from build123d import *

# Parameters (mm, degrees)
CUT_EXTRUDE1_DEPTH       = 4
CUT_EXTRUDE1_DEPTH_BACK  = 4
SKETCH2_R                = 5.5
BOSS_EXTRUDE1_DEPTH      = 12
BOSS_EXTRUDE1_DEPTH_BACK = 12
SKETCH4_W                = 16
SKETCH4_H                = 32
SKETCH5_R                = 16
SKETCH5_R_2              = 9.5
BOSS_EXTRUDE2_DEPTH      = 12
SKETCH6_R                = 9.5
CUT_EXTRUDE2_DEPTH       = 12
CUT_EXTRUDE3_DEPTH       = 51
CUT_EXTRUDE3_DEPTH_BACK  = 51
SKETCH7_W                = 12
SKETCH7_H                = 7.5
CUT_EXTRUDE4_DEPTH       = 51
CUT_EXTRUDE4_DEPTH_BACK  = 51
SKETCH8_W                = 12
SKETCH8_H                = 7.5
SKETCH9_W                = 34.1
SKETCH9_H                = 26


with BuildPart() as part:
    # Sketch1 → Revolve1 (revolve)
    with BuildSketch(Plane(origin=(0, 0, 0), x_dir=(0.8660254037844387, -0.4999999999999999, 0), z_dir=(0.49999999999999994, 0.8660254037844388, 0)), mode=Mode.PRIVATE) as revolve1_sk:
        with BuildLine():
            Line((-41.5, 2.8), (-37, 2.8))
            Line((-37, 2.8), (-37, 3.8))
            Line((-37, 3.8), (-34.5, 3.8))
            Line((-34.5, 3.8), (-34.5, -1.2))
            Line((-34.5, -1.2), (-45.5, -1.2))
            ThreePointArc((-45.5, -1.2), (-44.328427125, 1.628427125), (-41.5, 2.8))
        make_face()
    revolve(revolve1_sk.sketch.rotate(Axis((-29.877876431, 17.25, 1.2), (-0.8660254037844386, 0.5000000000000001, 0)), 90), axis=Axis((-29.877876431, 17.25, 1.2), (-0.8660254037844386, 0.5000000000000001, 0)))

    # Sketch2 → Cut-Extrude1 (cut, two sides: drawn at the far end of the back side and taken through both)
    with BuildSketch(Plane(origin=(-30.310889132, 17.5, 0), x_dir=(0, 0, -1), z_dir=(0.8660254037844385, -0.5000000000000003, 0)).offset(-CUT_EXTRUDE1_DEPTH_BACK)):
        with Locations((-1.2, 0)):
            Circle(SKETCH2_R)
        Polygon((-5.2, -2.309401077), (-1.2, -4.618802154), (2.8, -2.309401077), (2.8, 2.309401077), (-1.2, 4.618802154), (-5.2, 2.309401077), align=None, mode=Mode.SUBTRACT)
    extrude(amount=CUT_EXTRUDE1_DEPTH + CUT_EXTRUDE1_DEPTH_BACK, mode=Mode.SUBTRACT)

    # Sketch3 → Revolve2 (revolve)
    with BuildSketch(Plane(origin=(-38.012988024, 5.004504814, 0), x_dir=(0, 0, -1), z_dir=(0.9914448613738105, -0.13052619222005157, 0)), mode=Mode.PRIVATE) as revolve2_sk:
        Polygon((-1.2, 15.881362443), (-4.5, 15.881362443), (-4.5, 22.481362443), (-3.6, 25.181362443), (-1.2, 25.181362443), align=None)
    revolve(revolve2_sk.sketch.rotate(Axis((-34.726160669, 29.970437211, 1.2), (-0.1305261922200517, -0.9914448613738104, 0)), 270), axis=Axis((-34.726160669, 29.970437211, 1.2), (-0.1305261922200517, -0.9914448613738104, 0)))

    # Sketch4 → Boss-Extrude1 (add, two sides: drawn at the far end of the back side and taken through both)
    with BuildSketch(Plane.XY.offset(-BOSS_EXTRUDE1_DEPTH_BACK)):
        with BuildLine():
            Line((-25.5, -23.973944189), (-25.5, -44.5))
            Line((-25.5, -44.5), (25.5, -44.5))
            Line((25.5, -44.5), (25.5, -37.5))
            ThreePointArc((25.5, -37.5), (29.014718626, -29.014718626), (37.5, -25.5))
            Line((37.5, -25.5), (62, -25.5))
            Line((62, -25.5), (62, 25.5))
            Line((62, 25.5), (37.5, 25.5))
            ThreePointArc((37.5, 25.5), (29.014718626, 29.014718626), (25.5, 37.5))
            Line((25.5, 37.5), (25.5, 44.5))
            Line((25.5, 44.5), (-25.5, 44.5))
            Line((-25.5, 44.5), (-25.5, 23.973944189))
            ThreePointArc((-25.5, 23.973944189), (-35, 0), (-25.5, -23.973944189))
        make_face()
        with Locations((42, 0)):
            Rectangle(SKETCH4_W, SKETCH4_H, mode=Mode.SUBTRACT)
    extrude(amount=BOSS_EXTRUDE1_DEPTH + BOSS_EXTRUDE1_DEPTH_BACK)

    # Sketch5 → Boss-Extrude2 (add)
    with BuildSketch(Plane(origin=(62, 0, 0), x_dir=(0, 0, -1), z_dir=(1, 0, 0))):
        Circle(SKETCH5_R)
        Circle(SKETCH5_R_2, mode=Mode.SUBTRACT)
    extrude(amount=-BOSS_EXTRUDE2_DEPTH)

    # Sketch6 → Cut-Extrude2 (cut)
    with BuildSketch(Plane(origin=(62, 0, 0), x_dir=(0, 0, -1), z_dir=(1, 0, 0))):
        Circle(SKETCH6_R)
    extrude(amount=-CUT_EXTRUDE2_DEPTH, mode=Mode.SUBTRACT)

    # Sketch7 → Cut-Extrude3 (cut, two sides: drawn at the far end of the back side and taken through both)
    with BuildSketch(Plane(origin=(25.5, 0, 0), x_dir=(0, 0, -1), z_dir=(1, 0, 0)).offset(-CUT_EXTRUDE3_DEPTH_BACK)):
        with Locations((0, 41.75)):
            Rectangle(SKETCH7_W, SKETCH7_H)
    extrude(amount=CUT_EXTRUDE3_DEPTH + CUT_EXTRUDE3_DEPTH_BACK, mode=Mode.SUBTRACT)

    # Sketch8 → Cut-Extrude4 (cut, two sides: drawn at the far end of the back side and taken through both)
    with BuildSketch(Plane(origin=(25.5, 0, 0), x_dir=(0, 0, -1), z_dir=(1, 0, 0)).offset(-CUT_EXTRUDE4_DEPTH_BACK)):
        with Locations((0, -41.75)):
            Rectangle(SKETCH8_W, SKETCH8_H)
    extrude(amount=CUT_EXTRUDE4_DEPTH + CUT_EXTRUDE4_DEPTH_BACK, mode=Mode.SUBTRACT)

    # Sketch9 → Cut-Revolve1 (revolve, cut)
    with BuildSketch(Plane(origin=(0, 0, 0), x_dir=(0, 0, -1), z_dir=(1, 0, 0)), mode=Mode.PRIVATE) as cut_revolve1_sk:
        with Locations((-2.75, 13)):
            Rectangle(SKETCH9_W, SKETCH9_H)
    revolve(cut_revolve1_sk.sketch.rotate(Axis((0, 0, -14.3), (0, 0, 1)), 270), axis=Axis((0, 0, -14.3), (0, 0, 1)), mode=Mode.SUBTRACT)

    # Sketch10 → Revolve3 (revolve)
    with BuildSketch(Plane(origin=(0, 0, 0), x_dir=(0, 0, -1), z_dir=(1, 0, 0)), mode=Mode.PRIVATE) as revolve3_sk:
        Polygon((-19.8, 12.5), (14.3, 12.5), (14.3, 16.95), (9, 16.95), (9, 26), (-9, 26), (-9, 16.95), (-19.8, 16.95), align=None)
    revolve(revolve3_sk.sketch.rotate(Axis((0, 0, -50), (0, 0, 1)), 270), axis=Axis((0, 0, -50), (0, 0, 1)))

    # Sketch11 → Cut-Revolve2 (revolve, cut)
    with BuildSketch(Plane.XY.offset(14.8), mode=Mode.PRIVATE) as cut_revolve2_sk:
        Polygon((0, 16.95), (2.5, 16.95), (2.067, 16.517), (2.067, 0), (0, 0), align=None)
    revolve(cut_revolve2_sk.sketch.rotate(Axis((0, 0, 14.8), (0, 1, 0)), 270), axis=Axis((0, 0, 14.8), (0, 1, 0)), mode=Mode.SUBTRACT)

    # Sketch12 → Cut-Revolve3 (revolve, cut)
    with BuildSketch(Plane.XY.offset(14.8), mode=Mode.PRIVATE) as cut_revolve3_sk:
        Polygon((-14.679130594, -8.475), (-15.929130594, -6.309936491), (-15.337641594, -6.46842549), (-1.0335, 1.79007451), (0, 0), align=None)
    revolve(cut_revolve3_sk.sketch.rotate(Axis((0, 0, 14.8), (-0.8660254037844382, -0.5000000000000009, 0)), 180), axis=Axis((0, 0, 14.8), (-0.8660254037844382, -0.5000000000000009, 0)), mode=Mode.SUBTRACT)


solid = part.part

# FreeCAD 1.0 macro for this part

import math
import FreeCAD as App
import Part
import Sketcher
Q = App.Units.Quantity


def add_polygon(sketch, points):
    """Adds a closed chain of lines whose ends are joined by coincident constraints."""
    first, n = sketch.GeometryCount, len(points)
    for a, b in zip(points, points[1:] + points[:1]):
        sketch.addGeometry(Part.LineSegment(App.Vector(*a, 0), App.Vector(*b, 0)), False)
    for i in range(n):
        sketch.addConstraint(Sketcher.Constraint("Coincident", first + i, 2, first + (i + 1) % n, 1))

doc = App.newDocument("Part")
params = doc.addObject("Spreadsheet::Sheet", "Params")
for row, (alias, value) in enumerate([
    ("sketch1_radius", "4 mm"),
    ("sketch1_width", "11 mm"),
    ("sketch1_height", "5 mm"),
    ("sketch1_height2", "1 mm"),
    ("sketch1_width2", "4.5 mm"),
    ("revolution_angle", "360 deg"),
    ("sketch2_diameter", "11 mm"),
    ("sketch3_width", "3.3 mm"),
    ("sketch3_width2", "2.4 mm"),
    ("sketch3_height", "9.3 mm"),
    ("sketch3_height2", "6.6 mm"),
    ("revolution2_angle", "360 deg"),
    ("sketch4_radius", "12 mm"),
    ("sketch4_radius2", "35 mm"),
    ("sketch4_width", "51 mm"),
    ("sketch4_width2", "16 mm"),
    ("sketch4_height", "7 mm"),
    ("pad1_length", "12 mm"),
    ("pad1_length2", "12 mm"),
    ("sketch5_diameter", "32 mm"),
    ("sketch5_diameter2", "19 mm"),
    ("pad2_length", "12 mm"),
    ("sketch6_diameter", "19 mm"),
    ("pocket2_length", "12 mm"),
    ("sketch7_height", "12 mm"),
    ("sketch7_width", "7.5 mm"),
    ("sketch8_height", "12 mm"),
    ("sketch8_width", "7.5 mm"),
    ("sketch9_width", "26 mm"),
    ("sketch9_height", "34.1 mm"),
    ("groove_angle", "360 deg"),
    ("sketch10_height", "18 mm"),
    ("sketch10_height2", "34.1 mm"),
    ("sketch10_height3", "5.3 mm"),
    ("sketch10_width", "4.45 mm"),
    ("sketch10_width2", "9.05 mm"),
    ("revolution3_angle", "360 deg"),
    ("sketch11_width", "2.5 mm"),
    ("sketch11_height", "16.95 mm"),
    ("groove2_angle", "360 deg"),
    ("sketch12_length", "2.5 mm"),
    ("sketch12_length2", "16.95 mm"),
    ("groove3_angle", "360 deg"),
], start=1):
    params.set(f"A{row}", alias)
    params.set(f"B{row}", "=" + value)
    params.setAlias(f"B{row}", alias)

body = doc.addObject("PartDesign::Body", "Body")

sketch1 = body.newObject("Sketcher::SketchObject", "Sketch")
sketch1.Placement = App.Placement(App.Vector(0, 0, 0), App.Rotation(App.Vector(0.866025404, -0.5, 0), App.Vector(0, 0, -1), App.Vector(0.5, 0.866025404, 0), "ZXY"))
sketch1.addGeometry([
    Part.LineSegment(App.Vector(-37, 2.8, 0), App.Vector(-41.5, 2.8, 0)),
    Part.ArcOfCircle(Part.Circle(App.Vector(-41.5, -1.2, 0), App.Vector(0, 0, 1), 4), math.radians(90), math.radians(180)),
    Part.LineSegment(App.Vector(-45.5, -1.2, 0), App.Vector(-34.5, -1.2, 0)),
    Part.LineSegment(App.Vector(-34.5, -1.2, 0), App.Vector(-34.5, 3.8, 0)),
    Part.LineSegment(App.Vector(-34.5, 3.8, 0), App.Vector(-37, 3.8, 0)),
    Part.LineSegment(App.Vector(-37, 3.8, 0), App.Vector(-37, 2.8, 0)),
], False)
sketch1.addGeometry(Part.LineSegment(App.Vector(-34.5, -1.2, 0), App.Vector(-45.5, -1.2, 0)), True)
sketch1.addConstraint([
    Sketcher.Constraint("Tangent", 0, 2, 1, 1),
    Sketcher.Constraint("Coincident", 1, 2, 2, 1),
    Sketcher.Constraint("Coincident", 2, 2, 3, 1),
    Sketcher.Constraint("Coincident", 3, 2, 4, 1),
    Sketcher.Constraint("Coincident", 4, 2, 5, 1),
    Sketcher.Constraint("Coincident", 5, 2, 0, 1),
    Sketcher.Constraint("Horizontal", 0),
    Sketcher.Constraint("Horizontal", 2),
    Sketcher.Constraint("Vertical", 3),
    Sketcher.Constraint("Horizontal", 4),
    Sketcher.Constraint("Vertical", 5),
    Sketcher.Constraint("Horizontal", 6),
    Sketcher.Constraint("Coincident", 6, 1, 2, 2),
    Sketcher.Constraint("Equal", 2, 6),
    Sketcher.Constraint("Radius", 1, 4.0),
    Sketcher.Constraint("DistanceX", 2, 1, 2, 2, 11.0),
    Sketcher.Constraint("DistanceY", 3, 1, 3, 2, 5.0),
    Sketcher.Constraint("DistanceY", 5, 2, 5, 1, 1.0),
    Sketcher.Constraint("DistanceX", 0, 2, 0, 1, 4.5),
    Sketcher.Constraint("DistanceX", 4, 2, -1, 1, 37.0),
    Sketcher.Constraint("DistanceY", 1, 3, -1, 1, 1.2),
])
sketch1.setExpression("Constraints[14]", "Params.sketch1_radius")
sketch1.setExpression("Constraints[15]", "Params.sketch1_width")
sketch1.setExpression("Constraints[16]", "Params.sketch1_height")
sketch1.setExpression("Constraints[17]", "Params.sketch1_height2")
sketch1.setExpression("Constraints[18]", "Params.sketch1_width2")
revolution = body.newObject("PartDesign::Revolution", "Revolution")
revolution.Profile = sketch1
revolution.ReferenceAxis = (sketch1, ["Axis0"])
revolution.setExpression("Angle", "Params.revolution_angle")

sketch2 = body.newObject("Sketcher::SketchObject", "Sketch001")
sketch2.Placement = App.Placement(App.Vector(-30.310889, 17.5, 0), App.Rotation(App.Vector(0, 0, -1), App.Vector(0.5, 0.866025404, 0), App.Vector(0.866025404, -0.5, 0), "ZXY"))
sketch2.addGeometry(Part.Circle(App.Vector(-1.2, 0, 0), App.Vector(0, 0, 1), 5.5), False)
add_polygon(sketch2, [(-1.2, -4.6), (-5.2, -2.3), (-5.2, 2.3), (-1.2, 4.6), (2.8, 2.3), (2.8, -2.3)])
sketch2.addConstraint([
    Sketcher.Constraint("Vertical", 2),
    Sketcher.Constraint("Vertical", 5),
    Sketcher.Constraint("Symmetric", 3, 2, 6, 2, -1),
    Sketcher.Constraint("PointOnObject", 0, 3, -1),
    Sketcher.Constraint("Parallel", 1, 4),
    Sketcher.Constraint("Parallel", 3, 6),
    Sketcher.Constraint("Horizontal", 2, 2, 4, 2),
    Sketcher.Constraint("Horizontal", 1, 2, 5, 2),
    Sketcher.Constraint("Vertical", 0, 3, 3, 2),
    Sketcher.Constraint("Diameter", 0, 11.0),
    Sketcher.Constraint("Angle", 1, Q("150 deg")),
    Sketcher.Constraint("DistanceX", 1, 2, 0, 3, 4.0),
    Sketcher.Constraint("DistanceX", 0, 3, -1, 1, 1.2),
    Sketcher.Constraint("DistanceY", 1, 2, -1, 1, 2.309401),
])
sketch2.setExpression("Constraints[15]", "Params.sketch2_diameter")
pocket1 = body.newObject("PartDesign::Pocket", "Pocket")
pocket1.Profile = sketch2
pocket1.Type = "ThroughAll"
pocket1.Midplane = True

sketch3 = body.newObject("Sketcher::SketchObject", "Sketch002")
sketch3.Placement = App.Placement(App.Vector(-38.012988, 5.004505, 0), App.Rotation(App.Vector(0, 0, -1), App.Vector(0.130526192, 0.991444861, 0), App.Vector(0.991444861, -0.130526192, 0), "ZXY"))
add_polygon(sketch3, [(-4.5, 15.9), (-1.2, 15.9), (-1.2, 25.2), (-3.6, 25.2), (-4.5, 22.5)])
sketch3.addGeometry(Part.LineSegment(App.Vector(-1.2, 25.2, 0), App.Vector(-1.2, 15.9, 0)), True)
sketch3.addConstraint([
    Sketcher.Constraint("Horizontal", 0),
    Sketcher.Constraint("Vertical", 1),
    Sketcher.Constraint("Horizontal", 2),
    Sketcher.Constraint("Vertical", 4),
    Sketcher.Constraint("Vertical", 5),
    Sketcher.Constraint("Coincident", 5, 1, 1, 2),
    Sketcher.Constraint("Horizontal", 4, 2, 5, 2),
    Sketcher.Constraint("DistanceX", 0, 1, 0, 2, 3.3),
    Sketcher.Constraint("DistanceX", 2, 2, 2, 1, 2.4),
    Sketcher.Constraint("DistanceY", 1, 1, 1, 2, 9.3),
    Sketcher.Constraint("DistanceY", 4, 2, 4, 1, 6.6),
    Sketcher.Constraint("DistanceX", 0, 2, -1, 1, 1.2),
    Sketcher.Constraint("DistanceY", -1, 1, 0, 2, 15.881362),
])
sketch3.setExpression("Constraints[12]", "Params.sketch3_width")
sketch3.setExpression("Constraints[13]", "Params.sketch3_width2")
sketch3.setExpression("Constraints[14]", "Params.sketch3_height")
sketch3.setExpression("Constraints[15]", "Params.sketch3_height2")
revolution2 = body.newObject("PartDesign::Revolution", "Revolution001")
revolution2.Profile = sketch3
revolution2.ReferenceAxis = (sketch3, ["Axis0"])
revolution2.setExpression("Angle", "Params.revolution2_angle")

sketch4 = body.newObject("Sketcher::SketchObject", "Sketch003")
sketch4.AttachmentSupport = (doc.getObject("XY_Plane"), [""])
sketch4.MapMode = "FlatFace"
sketch4.addGeometry(Part.LineSegment(App.Vector(-26, -24, 0), App.Vector(-26, -44, 0)), False)
sketch4.addGeometry(Part.LineSegment(App.Vector(-26, -44, 0), App.Vector(26, -44, 0)), False)
sketch4.addGeometry(Part.LineSegment(App.Vector(26, -44, 0), App.Vector(26, -38, 0)), False)
sketch4.addGeometry(Part.ArcOfCircle(Part.Circle(App.Vector(38, -38, 0), App.Vector(0, 0, 1), 12), math.radians(90), math.radians(180)), False)
sketch4.addGeometry(Part.LineSegment(App.Vector(38, -26, 0), App.Vector(62, -26, 0)), False)
sketch4.addGeometry(Part.LineSegment(App.Vector(62, -26, 0), App.Vector(62, 26, 0)), False)
sketch4.addGeometry(Part.LineSegment(App.Vector(62, 26, 0), App.Vector(38, 26, 0)), False)
sketch4.addGeometry(Part.ArcOfCircle(Part.Circle(App.Vector(38, 38, 0), App.Vector(0, 0, 1), 12), math.radians(-180), math.radians(-90)), False)
sketch4.addGeometry(Part.LineSegment(App.Vector(26, 38, 0), App.Vector(26, 44, 0)), False)
sketch4.addGeometry(Part.LineSegment(App.Vector(26, 44, 0), App.Vector(-26, 44, 0)), False)
sketch4.addGeometry(Part.LineSegment(App.Vector(-26, 44, 0), App.Vector(-26, 24, 0)), False)
sketch4.addGeometry(Part.ArcOfCircle(Part.Circle(App.Vector(0, 0, 0), App.Vector(0, 0, 1), 35), math.radians(137), math.radians(223)), False)
add_polygon(sketch4, [(50, -16), (34, -16), (34, 16), (50, 16)])
sketch4.addConstraint([
    Sketcher.Constraint("Coincident", 0, 2, 1, 1),
    Sketcher.Constraint("Coincident", 1, 2, 2, 1),
    Sketcher.Constraint("Tangent", 2, 2, 3, 2),
    Sketcher.Constraint("Tangent", 3, 1, 4, 1),
    Sketcher.Constraint("Coincident", 4, 2, 5, 1),
    Sketcher.Constraint("Coincident", 5, 2, 6, 1),
    Sketcher.Constraint("Tangent", 6, 2, 7, 2),
    Sketcher.Constraint("Tangent", 7, 1, 8, 1),
    Sketcher.Constraint("Coincident", 8, 2, 9, 1),
    Sketcher.Constraint("Coincident", 9, 2, 10, 1),
    Sketcher.Constraint("Coincident", 10, 2, 11, 1),
    Sketcher.Constraint("Coincident", 11, 2, 0, 1),
    Sketcher.Constraint("Vertical", 0),
    Sketcher.Constraint("Horizontal", 1),
    Sketcher.Constraint("Vertical", 2),
    Sketcher.Constraint("Horizontal", 4),
    Sketcher.Constraint("Vertical", 5),
    Sketcher.Constraint("Horizontal", 6),
    Sketcher.Constraint("Vertical", 8),
    Sketcher.Constraint("Horizontal", 9),
    Sketcher.Constraint("Vertical", 10),
    Sketcher.Constraint("Horizontal", 12),
    Sketcher.Constraint("Vertical", 13),
    Sketcher.Constraint("Horizontal", 14),
    Sketcher.Constraint("Vertical", 15),
    Sketcher.Constraint("Coincident", 11, 3, -1, 1),
    Sketcher.Constraint("Equal", 3, 7),
    Sketcher.Constraint("Symmetric", 0, 2, 8, 2, -1, 1),
    Sketcher.Constraint("Symmetric", 3, 3, 7, 3, -1),
    Sketcher.Constraint("Vertical", 0, 2, 9, 2),
    Sketcher.Constraint("Equal", 9, 5),
    Sketcher.Constraint("Radius", 3, 12.0),
    Sketcher.Constraint("Radius", 11, 35.0),
    Sketcher.Constraint("DistanceX", 1, 1, 1, 2, 51.0),
    Sketcher.Constraint("DistanceX", 12, 2, 12, 1, 16.0),
    Sketcher.Constraint("DistanceY", 2, 1, 2, 2, 7.0),
    Sketcher.Constraint("DistanceY", 13, 1, 13, 2, 32.0),
    Sketcher.Constraint("DistanceX", 4, 1, 4, 2, 24.5),
    Sketcher.Constraint("DistanceX", -1, 1, 12, 2, 34.0),
    Sketcher.Constraint("DistanceY", 12, 2, -1, 1, 16.0),
])
sketch4.setExpression("Constraints[35]", "Params.sketch4_radius")
sketch4.setExpression("Constraints[36]", "Params.sketch4_radius2")
sketch4.setExpression("Constraints[37]", "Params.sketch4_width")
sketch4.setExpression("Constraints[38]", "Params.sketch4_width2")
sketch4.setExpression("Constraints[39]", "Params.sketch4_height")
pad1 = body.newObject("PartDesign::Pad", "Pad")
pad1.Profile = sketch4
pad1.Type = "TwoLengths"
pad1.setExpression("Length", "Params.pad1_length")
pad1.setExpression("Length2", "Params.pad1_length2")

sketch5 = body.newObject("Sketcher::SketchObject", "Sketch004")
sketch5.AttachmentSupport = (doc.getObject("YZ_Plane"), [""])
sketch5.MapMode = "FlatFace"
sketch5.AttachmentOffset = App.Placement(App.Vector(0, 0, 62), App.Rotation())
sketch5.addGeometry([
    Part.Circle(App.Vector(0, 0, 0), App.Vector(0, 0, 1), 16),
    Part.Circle(App.Vector(0, 0, 0), App.Vector(0, 0, 1), 10),
], False)
sketch5.addConstraint([
    Sketcher.Constraint("Coincident", 0, 3, -1, 1),
    Sketcher.Constraint("Coincident", 1, 3, -1, 1),
    Sketcher.Constraint("Diameter", 0, 32.0),
    Sketcher.Constraint("Diameter", 1, 19.0),
])
sketch5.setExpression("Constraints[2]", "Params.sketch5_diameter")
sketch5.setExpression("Constraints[3]", "Params.sketch5_diameter2")
pad2 = body.newObject("PartDesign::Pad", "Pad001")
pad2.Profile = sketch5
pad2.setExpression("Length", "Params.pad2_length")
pad2.Reversed = True

sketch6 = body.newObject("Sketcher::SketchObject", "Sketch005")
sketch6.AttachmentSupport = (doc.getObject("YZ_Plane"), [""])
sketch6.MapMode = "FlatFace"
sketch6.AttachmentOffset = App.Placement(App.Vector(0, 0, 62), App.Rotation())
sketch6.addGeometry(Part.Circle(App.Vector(0, 0, 0), App.Vector(0, 0, 1), 10), False)
sketch6.addConstraint([
    Sketcher.Constraint("Coincident", 0, 3, -1, 1),
    Sketcher.Constraint("Diameter", 0, 19.0),
])
sketch6.setExpression("Constraints[1]", "Params.sketch6_diameter")
pocket2 = body.newObject("PartDesign::Pocket", "Pocket001")
pocket2.Profile = sketch6
pocket2.setExpression("Length", "Params.pocket2_length")

sketch7 = body.newObject("Sketcher::SketchObject", "Sketch006")
sketch7.AttachmentSupport = (doc.getObject("YZ_Plane"), [""])
sketch7.MapMode = "FlatFace"
sketch7.AttachmentOffset = App.Placement(App.Vector(0, 0, 25.5), App.Rotation())
add_polygon(sketch7, [(46, 6), (38, 6), (38, -6), (46, -6)])
sketch7.addConstraint([
    Sketcher.Constraint("Horizontal", 0),
    Sketcher.Constraint("Vertical", 1),
    Sketcher.Constraint("Horizontal", 2),
    Sketcher.Constraint("Vertical", 3),
    Sketcher.Constraint("DistanceY", 1, 2, 1, 1, 12.0),
    Sketcher.Constraint("DistanceX", 0, 2, 0, 1, 7.5),
    Sketcher.Constraint("DistanceX", -1, 1, 0, 2, 38.0),
    Sketcher.Constraint("DistanceY", -1, 1, 0, 2, 6.0),
])
sketch7.setExpression("Constraints[8]", "Params.sketch7_height")
sketch7.setExpression("Constraints[9]", "Params.sketch7_width")
pocket3 = body.newObject("PartDesign::Pocket", "Pocket002")
pocket3.Profile = sketch7
pocket3.Type = "ThroughAll"
pocket3.Midplane = True

sketch8 = body.newObject("Sketcher::SketchObject", "Sketch007")
sketch8.AttachmentSupport = (doc.getObject("YZ_Plane"), [""])
sketch8.MapMode = "FlatFace"
sketch8.AttachmentOffset = App.Placement(App.Vector(0, 0, 25.5), App.Rotation())
add_polygon(sketch8, [(-38, 6), (-46, 6), (-46, -6), (-38, -6)])
sketch8.addConstraint([
    Sketcher.Constraint("Horizontal", 0),
    Sketcher.Constraint("Vertical", 1),
    Sketcher.Constraint("Horizontal", 2),
    Sketcher.Constraint("Vertical", 3),
    Sketcher.Constraint("DistanceY", 1, 2, 1, 1, 12.0),
    Sketcher.Constraint("DistanceX", 0, 2, 0, 1, 7.5),
    Sketcher.Constraint("DistanceY", -1, 1, 0, 2, 6.0),
    Sketcher.Constraint("DistanceX", 2, 2, -1, 1, 38.0),
])
sketch8.setExpression("Constraints[8]", "Params.sketch8_height")
sketch8.setExpression("Constraints[9]", "Params.sketch8_width")
pocket4 = body.newObject("PartDesign::Pocket", "Pocket003")
pocket4.Profile = sketch8
pocket4.Type = "ThroughAll"
pocket4.Midplane = True

sketch9 = body.newObject("Sketcher::SketchObject", "Sketch008")
sketch9.AttachmentSupport = (doc.getObject("YZ_Plane"), [""])
sketch9.MapMode = "FlatFace"
add_polygon(sketch9, [(26, 20), (0, 20), (0, -14), (26, -14)])
sketch9.addConstraint([
    Sketcher.Constraint("Horizontal", 0),
    Sketcher.Constraint("Vertical", 1),
    Sketcher.Constraint("Horizontal", 2),
    Sketcher.Constraint("Vertical", 3),
    Sketcher.Constraint("PointOnObject", 0, 2, -2),
    Sketcher.Constraint("DistanceX", 0, 2, 0, 1, 26.0),
    Sketcher.Constraint("DistanceY", 1, 2, 1, 1, 34.1),
    Sketcher.Constraint("DistanceY", -1, 1, 0, 2, 19.8),
])
sketch9.setExpression("Constraints[9]", "Params.sketch9_width")
sketch9.setExpression("Constraints[10]", "Params.sketch9_height")
groove = body.newObject("PartDesign::Groove", "Groove")
groove.Profile = sketch9
groove.ReferenceAxis = (sketch9, ["V_Axis"])
groove.setExpression("Angle", "Params.groove_angle")

sketch10 = body.newObject("Sketcher::SketchObject", "Sketch009")
sketch10.AttachmentSupport = (doc.getObject("YZ_Plane"), [""])
sketch10.MapMode = "FlatFace"
add_polygon(sketch10, [(12.5, 19.8), (12.5, -14.3), (16.9, -14.3), (16.9, -9), (26, -9), (26, 9), (16.9, 9), (16.9, 19.8)])
sketch10.addConstraint([
    Sketcher.Constraint("Vertical", 0),
    Sketcher.Constraint("Horizontal", 1),
    Sketcher.Constraint("Vertical", 2),
    Sketcher.Constraint("Horizontal", 3),
    Sketcher.Constraint("Vertical", 4),
    Sketcher.Constraint("Horizontal", 5),
    Sketcher.Constraint("Vertical", 6),
    Sketcher.Constraint("Horizontal", 7),
    Sketcher.Constraint("Symmetric", 2, 2, 5, 2, -1),
    Sketcher.Constraint("DistanceY", 4, 1, 4, 2, 18.0),
    Sketcher.Constraint("DistanceY", 0, 2, 0, 1, 34.1),
    Sketcher.Constraint("DistanceY", 2, 1, 2, 2, 5.3),
    Sketcher.Constraint("DistanceX", -1, 1, 3, 2, 26.0),
    Sketcher.Constraint("DistanceX", 1, 1, 1, 2, 4.45),
    Sketcher.Constraint("DistanceX", 3, 1, 3, 2, 9.05),
])
sketch10.setExpression("Constraints[17]", "Params.sketch10_height")
sketch10.setExpression("Constraints[18]", "Params.sketch10_height2")
sketch10.setExpression("Constraints[19]", "Params.sketch10_height3")
sketch10.setExpression("Constraints[21]", "Params.sketch10_width")
sketch10.setExpression("Constraints[22]", "Params.sketch10_width2")
revolution3 = body.newObject("PartDesign::Revolution", "Revolution002")
revolution3.Profile = sketch10
revolution3.ReferenceAxis = (sketch10, ["V_Axis"])
revolution3.setExpression("Angle", "Params.revolution3_angle")

sketch11 = body.newObject("Sketcher::SketchObject", "Sketch010")
sketch11.AttachmentSupport = (doc.getObject("XY_Plane"), [""])
sketch11.MapMode = "FlatFace"
sketch11.AttachmentOffset = App.Placement(App.Vector(0, 0, 14.8), App.Rotation())
add_polygon(sketch11, [(2.5, 16.9), (0, 16.9), (0, 0), (2.1, 0), (2.1, 16.5)])
sketch11.addConstraint([
    Sketcher.Constraint("Horizontal", 0),
    Sketcher.Constraint("Vertical", 1),
    Sketcher.Constraint("Horizontal", 2),
    Sketcher.Constraint("Vertical", 3),
    Sketcher.Constraint("Coincident", 1, 2, -1, 1),
    Sketcher.Constraint("Angle", 4, Q("45 deg")),
    Sketcher.Constraint("DistanceX", 0, 2, 0, 1, 2.5),
    Sketcher.Constraint("DistanceY", 1, 2, 1, 1, 16.95),
    Sketcher.Constraint("DistanceX", 2, 1, 2, 2, 2.067),
])
sketch11.setExpression("Constraints[11]", "Params.sketch11_width")
sketch11.setExpression("Constraints[12]", "Params.sketch11_height")
groove2 = body.newObject("PartDesign::Groove", "Groove001")
groove2.Profile = sketch11
groove2.ReferenceAxis = (sketch11, ["V_Axis"])
groove2.setExpression("Angle", "Params.groove2_angle")

sketch12 = body.newObject("Sketcher::SketchObject", "Sketch011")
sketch12.AttachmentSupport = (doc.getObject("XY_Plane"), [""])
sketch12.MapMode = "FlatFace"
sketch12.AttachmentOffset = App.Placement(App.Vector(0, 0, 14.8), App.Rotation())
add_polygon(sketch12, [(-15.9, -6.3), (-14.7, -8.5), (0, 0), (-1, 1.8), (-15.3, -6.5)])
sketch12.addGeometry(Part.LineSegment(App.Vector(0, 0, 0), App.Vector(-14.7, -8.5, 0)), True)
sketch12.addConstraint([
    Sketcher.Constraint("Coincident", 1, 2, -1, 1),
    Sketcher.Constraint("Coincident", 5, 1, -1, 1),
    Sketcher.Constraint("Coincident", 5, 2, 0, 2),
    Sketcher.Constraint("Perpendicular", 0, 1),
    Sketcher.Constraint("Perpendicular", 1, 2),
    Sketcher.Constraint("Perpendicular", 2, 3),
    Sketcher.Constraint("Angle", 0, Q("-60 deg")),
    Sketcher.Constraint("Angle", 4, Q("165 deg")),
    Sketcher.Constraint("Distance", 0, 2.5),
    Sketcher.Constraint("Distance", 1, 16.95),
    Sketcher.Constraint("Distance", 2, 2.067),
])
sketch12.setExpression("Constraints[13]", "Params.sketch12_length")
sketch12.setExpression("Constraints[14]", "Params.sketch12_length2")
groove3 = body.newObject("PartDesign::Groove", "Groove002")
groove3.Profile = sketch12
groove3.ReferenceAxis = (sketch12, ["Axis0"])
groove3.setExpression("Angle", "Params.groove3_angle")

doc.recompute()
